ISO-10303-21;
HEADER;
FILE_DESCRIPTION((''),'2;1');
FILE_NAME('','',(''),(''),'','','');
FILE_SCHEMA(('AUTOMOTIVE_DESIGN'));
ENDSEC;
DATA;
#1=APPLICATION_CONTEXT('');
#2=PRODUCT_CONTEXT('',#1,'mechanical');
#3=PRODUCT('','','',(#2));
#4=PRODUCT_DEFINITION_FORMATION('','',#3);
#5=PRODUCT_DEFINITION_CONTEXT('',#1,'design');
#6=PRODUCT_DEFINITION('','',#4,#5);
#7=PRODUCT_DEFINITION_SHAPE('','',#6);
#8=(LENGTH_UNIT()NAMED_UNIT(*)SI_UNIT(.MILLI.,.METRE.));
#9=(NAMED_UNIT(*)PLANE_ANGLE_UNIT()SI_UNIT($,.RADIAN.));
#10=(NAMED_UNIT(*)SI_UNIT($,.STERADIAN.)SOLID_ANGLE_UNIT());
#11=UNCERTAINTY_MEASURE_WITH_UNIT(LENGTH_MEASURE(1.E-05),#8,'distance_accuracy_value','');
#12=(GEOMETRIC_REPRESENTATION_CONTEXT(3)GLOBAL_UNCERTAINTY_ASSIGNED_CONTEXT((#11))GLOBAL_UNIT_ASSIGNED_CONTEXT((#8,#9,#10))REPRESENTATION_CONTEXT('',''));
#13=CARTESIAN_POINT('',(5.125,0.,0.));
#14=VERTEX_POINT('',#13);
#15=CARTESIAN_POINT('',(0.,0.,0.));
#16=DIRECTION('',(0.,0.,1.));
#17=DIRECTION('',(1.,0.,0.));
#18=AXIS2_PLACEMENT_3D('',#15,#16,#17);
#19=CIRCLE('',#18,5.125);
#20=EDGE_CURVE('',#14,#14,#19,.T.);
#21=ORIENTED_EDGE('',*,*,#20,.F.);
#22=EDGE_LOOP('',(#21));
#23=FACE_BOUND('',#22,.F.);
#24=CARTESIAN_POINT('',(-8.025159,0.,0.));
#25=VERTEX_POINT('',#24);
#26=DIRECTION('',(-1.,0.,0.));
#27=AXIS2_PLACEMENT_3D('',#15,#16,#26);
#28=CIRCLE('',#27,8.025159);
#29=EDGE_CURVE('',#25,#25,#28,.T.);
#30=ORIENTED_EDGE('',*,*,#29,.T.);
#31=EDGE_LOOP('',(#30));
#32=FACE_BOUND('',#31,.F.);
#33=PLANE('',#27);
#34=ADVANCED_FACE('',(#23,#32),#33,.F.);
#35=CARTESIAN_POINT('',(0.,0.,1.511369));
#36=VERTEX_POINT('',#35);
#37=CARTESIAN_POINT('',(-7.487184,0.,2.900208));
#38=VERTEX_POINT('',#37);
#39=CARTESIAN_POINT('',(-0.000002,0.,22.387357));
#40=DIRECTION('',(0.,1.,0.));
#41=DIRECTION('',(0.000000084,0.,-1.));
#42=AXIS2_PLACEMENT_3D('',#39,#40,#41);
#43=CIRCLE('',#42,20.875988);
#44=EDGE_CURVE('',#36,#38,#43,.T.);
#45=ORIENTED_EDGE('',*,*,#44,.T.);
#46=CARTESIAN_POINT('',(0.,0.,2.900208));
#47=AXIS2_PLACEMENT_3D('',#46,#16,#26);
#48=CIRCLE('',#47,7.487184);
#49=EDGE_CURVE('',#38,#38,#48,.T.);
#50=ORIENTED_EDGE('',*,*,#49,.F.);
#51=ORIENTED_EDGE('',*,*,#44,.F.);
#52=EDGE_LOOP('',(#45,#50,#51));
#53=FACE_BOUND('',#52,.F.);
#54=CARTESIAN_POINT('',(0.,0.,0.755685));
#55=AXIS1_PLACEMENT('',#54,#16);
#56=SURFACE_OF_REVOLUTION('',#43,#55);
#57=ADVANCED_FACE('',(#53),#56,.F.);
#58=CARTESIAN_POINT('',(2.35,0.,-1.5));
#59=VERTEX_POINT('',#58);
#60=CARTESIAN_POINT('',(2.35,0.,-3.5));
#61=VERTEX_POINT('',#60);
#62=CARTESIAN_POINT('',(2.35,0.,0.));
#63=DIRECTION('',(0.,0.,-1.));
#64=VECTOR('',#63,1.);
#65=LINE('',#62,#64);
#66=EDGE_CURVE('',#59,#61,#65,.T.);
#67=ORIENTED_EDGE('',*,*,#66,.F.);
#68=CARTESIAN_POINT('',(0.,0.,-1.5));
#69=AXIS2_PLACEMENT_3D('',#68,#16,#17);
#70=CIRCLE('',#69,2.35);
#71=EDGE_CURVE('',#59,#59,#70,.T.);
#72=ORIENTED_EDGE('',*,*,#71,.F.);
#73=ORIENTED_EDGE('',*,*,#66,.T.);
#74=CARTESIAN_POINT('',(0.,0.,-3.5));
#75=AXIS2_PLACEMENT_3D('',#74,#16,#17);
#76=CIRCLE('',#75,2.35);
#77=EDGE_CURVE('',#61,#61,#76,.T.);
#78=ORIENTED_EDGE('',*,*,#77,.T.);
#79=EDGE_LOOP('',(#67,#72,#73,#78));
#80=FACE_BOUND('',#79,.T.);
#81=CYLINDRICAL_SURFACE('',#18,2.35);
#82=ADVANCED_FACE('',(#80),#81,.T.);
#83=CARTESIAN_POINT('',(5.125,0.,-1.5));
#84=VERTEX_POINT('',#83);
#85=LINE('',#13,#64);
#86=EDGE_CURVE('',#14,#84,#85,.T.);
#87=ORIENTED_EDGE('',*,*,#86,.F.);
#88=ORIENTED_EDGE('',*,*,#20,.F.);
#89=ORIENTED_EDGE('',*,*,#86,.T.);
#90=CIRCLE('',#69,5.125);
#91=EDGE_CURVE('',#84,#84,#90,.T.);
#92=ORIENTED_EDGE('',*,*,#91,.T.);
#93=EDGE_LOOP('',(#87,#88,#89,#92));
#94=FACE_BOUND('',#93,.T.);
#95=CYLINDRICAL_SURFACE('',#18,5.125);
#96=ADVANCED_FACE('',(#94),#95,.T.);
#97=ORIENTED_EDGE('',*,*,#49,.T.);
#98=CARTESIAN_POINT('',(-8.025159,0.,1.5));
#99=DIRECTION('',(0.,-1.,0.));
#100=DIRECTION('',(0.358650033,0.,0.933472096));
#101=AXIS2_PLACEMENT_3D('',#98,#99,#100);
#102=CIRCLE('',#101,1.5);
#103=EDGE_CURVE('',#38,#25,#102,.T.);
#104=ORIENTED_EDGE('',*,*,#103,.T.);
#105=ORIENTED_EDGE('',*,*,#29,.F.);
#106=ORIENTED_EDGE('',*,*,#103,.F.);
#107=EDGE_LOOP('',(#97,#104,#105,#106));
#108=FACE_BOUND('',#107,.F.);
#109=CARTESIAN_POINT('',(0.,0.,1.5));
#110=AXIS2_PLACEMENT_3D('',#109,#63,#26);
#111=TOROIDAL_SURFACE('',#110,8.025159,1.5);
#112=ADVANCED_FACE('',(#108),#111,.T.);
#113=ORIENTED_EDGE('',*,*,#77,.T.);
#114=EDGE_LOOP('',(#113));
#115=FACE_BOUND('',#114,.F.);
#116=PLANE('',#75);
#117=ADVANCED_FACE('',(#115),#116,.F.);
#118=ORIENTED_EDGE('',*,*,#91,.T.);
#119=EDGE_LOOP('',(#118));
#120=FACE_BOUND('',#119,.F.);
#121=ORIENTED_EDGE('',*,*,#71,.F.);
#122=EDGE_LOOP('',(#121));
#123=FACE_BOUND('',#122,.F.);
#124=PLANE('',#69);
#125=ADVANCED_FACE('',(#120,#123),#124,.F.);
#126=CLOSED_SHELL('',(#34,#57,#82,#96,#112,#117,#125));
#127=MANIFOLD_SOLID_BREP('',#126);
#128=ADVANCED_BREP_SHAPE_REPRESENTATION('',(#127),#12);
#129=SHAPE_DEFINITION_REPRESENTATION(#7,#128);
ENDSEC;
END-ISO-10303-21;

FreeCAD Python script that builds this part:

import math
import FreeCAD as App
import Part
import Sketcher
from FreeCAD import Vector
Q = App.Units.Quantity

doc = App.newDocument("Part")
body = doc.addObject("PartDesign::Body", "Body")

sketch1 = body.newObject("Sketcher::SketchObject", "Sketch")
sketch1.AttachmentSupport = (doc.getObject("XZ_Plane"), [""])
sketch1.MapMode = "FlatFace"
sketch1.addGeometry([
    Part.ArcOfCircle(Part.Circle(Vector(0, 22.4, 0), Vector(0, 0, 1), 20.9), math.radians(-111), math.radians(-90)),
    Part.ArcOfCircle(Part.Circle(Vector(-8, 1.5, 0), Vector(0, 0, 1), 1.5), math.radians(69), math.radians(270)),
    Part.LineSegment(Vector(-8, 0, 0), Vector(0, 0, 0)),
    Part.LineSegment(Vector(0, 0, 0), Vector(0, 1.5, 0)),
], False)
sketch1.addConstraint([
    Sketcher.Constraint("Tangent", 0, 1, 1, 1),
    Sketcher.Constraint("Tangent", 1, 2, 2, 1),
    Sketcher.Constraint("Coincident", 2, 2, 3, 1),
    Sketcher.Constraint("Coincident", 3, 2, 0, 2),
    Sketcher.Constraint("Horizontal", 2),
    Sketcher.Constraint("Vertical", 3),
    Sketcher.Constraint("Coincident", 2, 2, -1, 1),
    Sketcher.Constraint("PointOnObject", 0, 3, -2),
    Sketcher.Constraint("Radius", 1, Q("1.5 mm")),
    Sketcher.Constraint("Radius", 0, Q("20.875988 mm")),
    Sketcher.Constraint("DistanceX", 2, 1, 2, 2, Q("8.025159 mm")),
])
revolution = body.newObject("PartDesign::Revolution", "Revolution")
revolution.Profile = sketch1
revolution.ReferenceAxis = (sketch1, ["V_Axis"])
revolution.Angle = 360

sketch2 = body.newObject("Sketcher::SketchObject", "Sketch001")
sketch2.AttachmentSupport = (doc.getObject("XY_Plane"), [""])
sketch2.MapMode = "FlatFace"
sketch2.addGeometry(Part.Circle(Vector(0, 0, 0), Vector(0, 0, 1), 5), False)
sketch2.addConstraint([
    Sketcher.Constraint("Coincident", 0, 3, -1, 1),
    Sketcher.Constraint("Diameter", 0, Q("10.25 mm")),
])
pad1 = body.newObject("PartDesign::Pad", "Pad")
pad1.Profile = sketch2
pad1.Length = 1.5
pad1.Reversed = True

sketch3 = body.newObject("Sketcher::SketchObject", "Sketch002")
sketch3.AttachmentSupport = (doc.getObject("XY_Plane"), [""])
sketch3.MapMode = "FlatFace"
sketch3.addGeometry(Part.Circle(Vector(0, 0, 0), Vector(0, 0, 1), 2.4), False)
sketch3.addConstraint([
    Sketcher.Constraint("Coincident", 0, 3, -1, 1),
    Sketcher.Constraint("Diameter", 0, Q("4.7 mm")),
])
pad2 = body.newObject("PartDesign::Pad", "Pad001")
pad2.Profile = sketch3
pad2.Length = 3.5
pad2.Reversed = True

doc.recompute()
